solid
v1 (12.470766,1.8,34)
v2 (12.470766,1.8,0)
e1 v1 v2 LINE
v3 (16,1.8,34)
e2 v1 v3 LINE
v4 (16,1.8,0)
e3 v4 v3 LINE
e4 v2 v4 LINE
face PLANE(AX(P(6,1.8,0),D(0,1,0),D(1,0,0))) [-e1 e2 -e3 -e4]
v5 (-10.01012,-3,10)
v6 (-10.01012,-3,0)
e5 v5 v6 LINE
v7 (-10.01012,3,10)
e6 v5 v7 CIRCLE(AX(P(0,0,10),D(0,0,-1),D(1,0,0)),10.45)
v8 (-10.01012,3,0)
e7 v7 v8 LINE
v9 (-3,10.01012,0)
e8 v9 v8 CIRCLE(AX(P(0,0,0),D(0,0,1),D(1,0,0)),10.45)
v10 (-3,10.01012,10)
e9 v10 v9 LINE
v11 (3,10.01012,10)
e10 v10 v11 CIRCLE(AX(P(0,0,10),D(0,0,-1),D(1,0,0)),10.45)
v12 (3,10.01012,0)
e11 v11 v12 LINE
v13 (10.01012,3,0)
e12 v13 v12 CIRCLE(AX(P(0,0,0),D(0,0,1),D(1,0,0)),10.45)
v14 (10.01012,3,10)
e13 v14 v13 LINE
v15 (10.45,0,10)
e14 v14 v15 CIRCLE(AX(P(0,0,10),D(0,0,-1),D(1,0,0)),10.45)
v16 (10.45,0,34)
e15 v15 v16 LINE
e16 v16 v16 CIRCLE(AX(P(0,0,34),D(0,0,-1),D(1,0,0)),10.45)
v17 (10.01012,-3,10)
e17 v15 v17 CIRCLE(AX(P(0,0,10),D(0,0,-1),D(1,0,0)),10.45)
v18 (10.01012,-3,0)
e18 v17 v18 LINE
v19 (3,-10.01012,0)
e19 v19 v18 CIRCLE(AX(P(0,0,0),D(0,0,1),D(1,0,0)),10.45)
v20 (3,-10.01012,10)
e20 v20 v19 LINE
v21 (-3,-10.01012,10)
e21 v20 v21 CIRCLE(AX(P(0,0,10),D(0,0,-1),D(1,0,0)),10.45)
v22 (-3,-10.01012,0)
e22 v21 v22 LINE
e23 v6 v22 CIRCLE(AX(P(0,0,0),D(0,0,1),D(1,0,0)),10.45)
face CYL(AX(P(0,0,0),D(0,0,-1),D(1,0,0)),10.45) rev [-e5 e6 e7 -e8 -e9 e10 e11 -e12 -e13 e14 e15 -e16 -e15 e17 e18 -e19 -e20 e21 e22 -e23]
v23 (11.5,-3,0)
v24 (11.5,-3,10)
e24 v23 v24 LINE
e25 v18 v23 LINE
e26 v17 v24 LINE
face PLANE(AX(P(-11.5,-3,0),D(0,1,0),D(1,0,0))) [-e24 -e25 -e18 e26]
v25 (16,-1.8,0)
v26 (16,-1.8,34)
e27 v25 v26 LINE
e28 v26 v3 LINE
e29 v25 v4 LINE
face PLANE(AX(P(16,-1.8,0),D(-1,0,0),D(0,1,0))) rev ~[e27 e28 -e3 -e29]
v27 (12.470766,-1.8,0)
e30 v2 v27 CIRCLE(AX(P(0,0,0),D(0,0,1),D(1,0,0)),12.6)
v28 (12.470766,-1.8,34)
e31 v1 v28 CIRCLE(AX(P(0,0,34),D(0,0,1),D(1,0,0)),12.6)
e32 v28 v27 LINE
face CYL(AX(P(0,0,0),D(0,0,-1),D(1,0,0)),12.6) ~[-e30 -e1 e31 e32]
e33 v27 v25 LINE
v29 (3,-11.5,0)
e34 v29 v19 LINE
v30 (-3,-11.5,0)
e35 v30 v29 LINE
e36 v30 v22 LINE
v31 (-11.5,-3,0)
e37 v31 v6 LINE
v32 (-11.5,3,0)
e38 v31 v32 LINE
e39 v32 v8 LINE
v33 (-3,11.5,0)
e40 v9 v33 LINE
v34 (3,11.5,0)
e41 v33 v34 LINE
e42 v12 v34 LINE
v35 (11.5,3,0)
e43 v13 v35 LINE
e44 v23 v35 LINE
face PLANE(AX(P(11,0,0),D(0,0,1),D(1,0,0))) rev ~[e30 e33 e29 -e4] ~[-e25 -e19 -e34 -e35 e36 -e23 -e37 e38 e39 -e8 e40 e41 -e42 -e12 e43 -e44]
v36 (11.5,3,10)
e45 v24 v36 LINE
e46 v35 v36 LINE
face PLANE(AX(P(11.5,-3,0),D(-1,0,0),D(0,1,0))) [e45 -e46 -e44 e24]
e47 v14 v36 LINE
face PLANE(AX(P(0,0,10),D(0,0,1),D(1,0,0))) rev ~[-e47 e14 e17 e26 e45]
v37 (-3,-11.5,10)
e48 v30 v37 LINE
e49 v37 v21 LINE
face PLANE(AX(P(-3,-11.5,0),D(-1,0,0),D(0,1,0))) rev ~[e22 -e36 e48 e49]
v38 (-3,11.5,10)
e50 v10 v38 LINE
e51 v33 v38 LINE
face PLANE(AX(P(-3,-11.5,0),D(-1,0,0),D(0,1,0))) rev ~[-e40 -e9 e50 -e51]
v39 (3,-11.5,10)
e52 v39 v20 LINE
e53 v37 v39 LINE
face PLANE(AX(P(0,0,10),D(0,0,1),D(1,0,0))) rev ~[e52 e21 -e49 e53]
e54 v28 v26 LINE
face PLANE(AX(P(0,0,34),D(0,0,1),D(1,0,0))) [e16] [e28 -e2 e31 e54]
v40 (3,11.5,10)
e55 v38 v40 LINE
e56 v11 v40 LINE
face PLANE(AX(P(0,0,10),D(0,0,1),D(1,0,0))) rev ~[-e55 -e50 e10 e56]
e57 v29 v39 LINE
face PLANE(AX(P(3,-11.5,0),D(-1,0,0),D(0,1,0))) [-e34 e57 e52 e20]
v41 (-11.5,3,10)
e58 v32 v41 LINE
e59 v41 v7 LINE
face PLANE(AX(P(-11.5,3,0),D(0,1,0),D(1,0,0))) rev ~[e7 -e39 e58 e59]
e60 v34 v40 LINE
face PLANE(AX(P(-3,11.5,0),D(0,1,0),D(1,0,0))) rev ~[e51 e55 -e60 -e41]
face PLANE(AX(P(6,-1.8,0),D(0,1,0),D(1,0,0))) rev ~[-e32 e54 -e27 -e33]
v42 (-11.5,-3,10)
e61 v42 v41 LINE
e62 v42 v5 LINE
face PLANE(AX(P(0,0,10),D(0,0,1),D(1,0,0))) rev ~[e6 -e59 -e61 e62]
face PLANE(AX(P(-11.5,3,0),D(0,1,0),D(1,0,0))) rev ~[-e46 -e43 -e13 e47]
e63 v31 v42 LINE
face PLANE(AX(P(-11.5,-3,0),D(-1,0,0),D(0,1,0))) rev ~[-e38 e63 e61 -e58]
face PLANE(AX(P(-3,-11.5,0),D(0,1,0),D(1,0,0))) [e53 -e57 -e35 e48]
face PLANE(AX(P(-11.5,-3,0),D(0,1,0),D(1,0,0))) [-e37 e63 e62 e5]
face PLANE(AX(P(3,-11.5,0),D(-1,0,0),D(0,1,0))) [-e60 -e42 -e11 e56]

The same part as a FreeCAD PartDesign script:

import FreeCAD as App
import Part
import Sketcher
from FreeCAD import Vector
Q = App.Units.Quantity

doc = App.newDocument("Part")
body = doc.addObject("PartDesign::Body", "Body")

sketch1 = body.newObject("Sketcher::SketchObject", "Sketch")
sketch1.AttachmentSupport = (doc.getObject("XY_Plane"), [""])
sketch1.MapMode = "FlatFace"
sketch1.addGeometry([
    Part.LineSegment(Vector(-12, 3, 0), Vector(-12, -3, 0)),
    Part.LineSegment(Vector(-12, -3, 0), Vector(12, -3, 0)),
    Part.LineSegment(Vector(12, -3, 0), Vector(12, 3, 0)),
    Part.LineSegment(Vector(12, 3, 0), Vector(-12, 3, 0)),
], False)
sketch1.addConstraint([
    Sketcher.Constraint("Coincident", 0, 2, 1, 1),
    Sketcher.Constraint("Coincident", 1, 2, 2, 1),
    Sketcher.Constraint("Coincident", 2, 2, 3, 1),
    Sketcher.Constraint("Coincident", 3, 2, 0, 1),
    Sketcher.Constraint("Vertical", 0),
    Sketcher.Constraint("Horizontal", 1),
    Sketcher.Constraint("Vertical", 2),
    Sketcher.Constraint("Horizontal", 3),
    Sketcher.Constraint("Symmetric", 0, 2, 2, 2, -1, 1),
    Sketcher.Constraint("DistanceX", 1, 1, 1, 2, Q("23 mm")),
    Sketcher.Constraint("DistanceY", 0, 2, 0, 1, Q("6 mm")),
])
pad1 = body.newObject("PartDesign::Pad", "Pad")
pad1.Profile = sketch1
pad1.Length = 10
body2 = doc.addObject("PartDesign::Body", "Body001")

sketch2 = body2.newObject("Sketcher::SketchObject", "Sketch001")
sketch2.AttachmentSupport = (doc.getObject("XY_Plane001"), [""])
sketch2.MapMode = "FlatFace"
sketch2.addGeometry([
    Part.LineSegment(Vector(-3, 12, 0), Vector(-3, -12, 0)),
    Part.LineSegment(Vector(-3, -12, 0), Vector(3, -12, 0)),
    Part.LineSegment(Vector(3, -12, 0), Vector(3, 12, 0)),
    Part.LineSegment(Vector(3, 12, 0), Vector(-3, 12, 0)),
], False)
sketch2.addConstraint([
    Sketcher.Constraint("Coincident", 0, 2, 1, 1),
    Sketcher.Constraint("Coincident", 1, 2, 2, 1),
    Sketcher.Constraint("Coincident", 2, 2, 3, 1),
    Sketcher.Constraint("Coincident", 3, 2, 0, 1),
    Sketcher.Constraint("Vertical", 0),
    Sketcher.Constraint("Horizontal", 1),
    Sketcher.Constraint("Vertical", 2),
    Sketcher.Constraint("Horizontal", 3),
    Sketcher.Constraint("Symmetric", 0, 2, 2, 2, -1, 1),
    Sketcher.Constraint("DistanceX", 1, 1, 1, 2, Q("6 mm")),
    Sketcher.Constraint("DistanceY", 0, 2, 0, 1, Q("23 mm")),
])
pad2 = body2.newObject("PartDesign::Pad", "Pad001")
pad2.Profile = sketch2
pad2.Length = 10
body3 = doc.addObject("PartDesign::Body", "Body002")

sketch3 = body3.newObject("Sketcher::SketchObject", "Sketch002")
sketch3.AttachmentSupport = (doc.getObject("XY_Plane002"), [""])
sketch3.MapMode = "FlatFace"
sketch3.addGeometry(Part.Circle(Vector(0, 0, 0), Vector(0, 0, 1), 10), False)
sketch3.addConstraint([
    Sketcher.Constraint("Coincident", 0, 3, -1, 1),
    Sketcher.Constraint("Diameter", 0, Q("20.9 mm")),
])
pad3 = body3.newObject("PartDesign::Pad", "Pad002")
pad3.Profile = sketch3
pad3.Length = 100
body4 = doc.addObject("PartDesign::Body", "Body003")

sketch4 = body4.newObject("Sketcher::SketchObject", "Sketch003")
sketch4.AttachmentSupport = (doc.getObject("XY_Plane003"), [""])
sketch4.MapMode = "FlatFace"
sketch4.addGeometry(Part.Circle(Vector(0, 0, 0), Vector(0, 0, 1), 13), False)
sketch4.addConstraint([
    Sketcher.Constraint("Coincident", 0, 3, -1, 1),
    Sketcher.Constraint("Diameter", 0, Q("25.2 mm")),
])
pad4 = body4.newObject("PartDesign::Pad", "Pad003")
pad4.Profile = sketch4
pad4.Length = 34
body5 = doc.addObject("PartDesign::Body", "Body004")

sketch5 = body5.newObject("Sketcher::SketchObject", "Sketch004")
sketch5.AttachmentSupport = (doc.getObject("XY_Plane004"), [""])
sketch5.MapMode = "FlatFace"
sketch5.addGeometry([
    Part.LineSegment(Vector(6, 1.8, 0), Vector(6, -1.8, 0)),
    Part.LineSegment(Vector(6, -1.8, 0), Vector(16, -1.8, 0)),
    Part.LineSegment(Vector(16, -1.8, 0), Vector(16, 1.8, 0)),
    Part.LineSegment(Vector(16, 1.8, 0), Vector(6, 1.8, 0)),
], False)
sketch5.addConstraint([
    Sketcher.Constraint("Coincident", 0, 2, 1, 1),
    Sketcher.Constraint("Coincident", 1, 2, 2, 1),
    Sketcher.Constraint("Coincident", 2, 2, 3, 1),
    Sketcher.Constraint("Coincident", 3, 2, 0, 1),
    Sketcher.Constraint("Vertical", 0),
    Sketcher.Constraint("Horizontal", 1),
    Sketcher.Constraint("Vertical", 2),
    Sketcher.Constraint("Horizontal", 3),
    Sketcher.Constraint("DistanceX", 1, 1, 1, 2, Q("10 mm")),
    Sketcher.Constraint("DistanceY", 0, 2, 0, 1, Q("3.6 mm")),
    Sketcher.Constraint("DistanceX", -1, 1, 0, 2, Q("6 mm")),
    Sketcher.Constraint("DistanceY", 0, 2, -1, 1, Q("1.8 mm")),
])
pad5 = body5.newObject("PartDesign::Pad", "Pad004")
pad5.Profile = sketch5
pad5.Length = 34
doc.recompute()

boolean = body5.newObject("PartDesign::Boolean", "Boolean")
boolean.Type = "Fuse"
boolean.addObjects([body4])
doc.recompute()

boolean2 = body5.newObject("PartDesign::Boolean", "Boolean001")
boolean2.Type = "Cut"
boolean2.addObjects([body3])
doc.recompute()

boolean3 = body5.newObject("PartDesign::Boolean", "Boolean002")
boolean3.Type = "Cut"
boolean3.addObjects([body2])
doc.recompute()

boolean4 = body5.newObject("PartDesign::Boolean", "Boolean003")
boolean4.Type = "Cut"
boolean4.addObjects([body])

doc.recompute()
